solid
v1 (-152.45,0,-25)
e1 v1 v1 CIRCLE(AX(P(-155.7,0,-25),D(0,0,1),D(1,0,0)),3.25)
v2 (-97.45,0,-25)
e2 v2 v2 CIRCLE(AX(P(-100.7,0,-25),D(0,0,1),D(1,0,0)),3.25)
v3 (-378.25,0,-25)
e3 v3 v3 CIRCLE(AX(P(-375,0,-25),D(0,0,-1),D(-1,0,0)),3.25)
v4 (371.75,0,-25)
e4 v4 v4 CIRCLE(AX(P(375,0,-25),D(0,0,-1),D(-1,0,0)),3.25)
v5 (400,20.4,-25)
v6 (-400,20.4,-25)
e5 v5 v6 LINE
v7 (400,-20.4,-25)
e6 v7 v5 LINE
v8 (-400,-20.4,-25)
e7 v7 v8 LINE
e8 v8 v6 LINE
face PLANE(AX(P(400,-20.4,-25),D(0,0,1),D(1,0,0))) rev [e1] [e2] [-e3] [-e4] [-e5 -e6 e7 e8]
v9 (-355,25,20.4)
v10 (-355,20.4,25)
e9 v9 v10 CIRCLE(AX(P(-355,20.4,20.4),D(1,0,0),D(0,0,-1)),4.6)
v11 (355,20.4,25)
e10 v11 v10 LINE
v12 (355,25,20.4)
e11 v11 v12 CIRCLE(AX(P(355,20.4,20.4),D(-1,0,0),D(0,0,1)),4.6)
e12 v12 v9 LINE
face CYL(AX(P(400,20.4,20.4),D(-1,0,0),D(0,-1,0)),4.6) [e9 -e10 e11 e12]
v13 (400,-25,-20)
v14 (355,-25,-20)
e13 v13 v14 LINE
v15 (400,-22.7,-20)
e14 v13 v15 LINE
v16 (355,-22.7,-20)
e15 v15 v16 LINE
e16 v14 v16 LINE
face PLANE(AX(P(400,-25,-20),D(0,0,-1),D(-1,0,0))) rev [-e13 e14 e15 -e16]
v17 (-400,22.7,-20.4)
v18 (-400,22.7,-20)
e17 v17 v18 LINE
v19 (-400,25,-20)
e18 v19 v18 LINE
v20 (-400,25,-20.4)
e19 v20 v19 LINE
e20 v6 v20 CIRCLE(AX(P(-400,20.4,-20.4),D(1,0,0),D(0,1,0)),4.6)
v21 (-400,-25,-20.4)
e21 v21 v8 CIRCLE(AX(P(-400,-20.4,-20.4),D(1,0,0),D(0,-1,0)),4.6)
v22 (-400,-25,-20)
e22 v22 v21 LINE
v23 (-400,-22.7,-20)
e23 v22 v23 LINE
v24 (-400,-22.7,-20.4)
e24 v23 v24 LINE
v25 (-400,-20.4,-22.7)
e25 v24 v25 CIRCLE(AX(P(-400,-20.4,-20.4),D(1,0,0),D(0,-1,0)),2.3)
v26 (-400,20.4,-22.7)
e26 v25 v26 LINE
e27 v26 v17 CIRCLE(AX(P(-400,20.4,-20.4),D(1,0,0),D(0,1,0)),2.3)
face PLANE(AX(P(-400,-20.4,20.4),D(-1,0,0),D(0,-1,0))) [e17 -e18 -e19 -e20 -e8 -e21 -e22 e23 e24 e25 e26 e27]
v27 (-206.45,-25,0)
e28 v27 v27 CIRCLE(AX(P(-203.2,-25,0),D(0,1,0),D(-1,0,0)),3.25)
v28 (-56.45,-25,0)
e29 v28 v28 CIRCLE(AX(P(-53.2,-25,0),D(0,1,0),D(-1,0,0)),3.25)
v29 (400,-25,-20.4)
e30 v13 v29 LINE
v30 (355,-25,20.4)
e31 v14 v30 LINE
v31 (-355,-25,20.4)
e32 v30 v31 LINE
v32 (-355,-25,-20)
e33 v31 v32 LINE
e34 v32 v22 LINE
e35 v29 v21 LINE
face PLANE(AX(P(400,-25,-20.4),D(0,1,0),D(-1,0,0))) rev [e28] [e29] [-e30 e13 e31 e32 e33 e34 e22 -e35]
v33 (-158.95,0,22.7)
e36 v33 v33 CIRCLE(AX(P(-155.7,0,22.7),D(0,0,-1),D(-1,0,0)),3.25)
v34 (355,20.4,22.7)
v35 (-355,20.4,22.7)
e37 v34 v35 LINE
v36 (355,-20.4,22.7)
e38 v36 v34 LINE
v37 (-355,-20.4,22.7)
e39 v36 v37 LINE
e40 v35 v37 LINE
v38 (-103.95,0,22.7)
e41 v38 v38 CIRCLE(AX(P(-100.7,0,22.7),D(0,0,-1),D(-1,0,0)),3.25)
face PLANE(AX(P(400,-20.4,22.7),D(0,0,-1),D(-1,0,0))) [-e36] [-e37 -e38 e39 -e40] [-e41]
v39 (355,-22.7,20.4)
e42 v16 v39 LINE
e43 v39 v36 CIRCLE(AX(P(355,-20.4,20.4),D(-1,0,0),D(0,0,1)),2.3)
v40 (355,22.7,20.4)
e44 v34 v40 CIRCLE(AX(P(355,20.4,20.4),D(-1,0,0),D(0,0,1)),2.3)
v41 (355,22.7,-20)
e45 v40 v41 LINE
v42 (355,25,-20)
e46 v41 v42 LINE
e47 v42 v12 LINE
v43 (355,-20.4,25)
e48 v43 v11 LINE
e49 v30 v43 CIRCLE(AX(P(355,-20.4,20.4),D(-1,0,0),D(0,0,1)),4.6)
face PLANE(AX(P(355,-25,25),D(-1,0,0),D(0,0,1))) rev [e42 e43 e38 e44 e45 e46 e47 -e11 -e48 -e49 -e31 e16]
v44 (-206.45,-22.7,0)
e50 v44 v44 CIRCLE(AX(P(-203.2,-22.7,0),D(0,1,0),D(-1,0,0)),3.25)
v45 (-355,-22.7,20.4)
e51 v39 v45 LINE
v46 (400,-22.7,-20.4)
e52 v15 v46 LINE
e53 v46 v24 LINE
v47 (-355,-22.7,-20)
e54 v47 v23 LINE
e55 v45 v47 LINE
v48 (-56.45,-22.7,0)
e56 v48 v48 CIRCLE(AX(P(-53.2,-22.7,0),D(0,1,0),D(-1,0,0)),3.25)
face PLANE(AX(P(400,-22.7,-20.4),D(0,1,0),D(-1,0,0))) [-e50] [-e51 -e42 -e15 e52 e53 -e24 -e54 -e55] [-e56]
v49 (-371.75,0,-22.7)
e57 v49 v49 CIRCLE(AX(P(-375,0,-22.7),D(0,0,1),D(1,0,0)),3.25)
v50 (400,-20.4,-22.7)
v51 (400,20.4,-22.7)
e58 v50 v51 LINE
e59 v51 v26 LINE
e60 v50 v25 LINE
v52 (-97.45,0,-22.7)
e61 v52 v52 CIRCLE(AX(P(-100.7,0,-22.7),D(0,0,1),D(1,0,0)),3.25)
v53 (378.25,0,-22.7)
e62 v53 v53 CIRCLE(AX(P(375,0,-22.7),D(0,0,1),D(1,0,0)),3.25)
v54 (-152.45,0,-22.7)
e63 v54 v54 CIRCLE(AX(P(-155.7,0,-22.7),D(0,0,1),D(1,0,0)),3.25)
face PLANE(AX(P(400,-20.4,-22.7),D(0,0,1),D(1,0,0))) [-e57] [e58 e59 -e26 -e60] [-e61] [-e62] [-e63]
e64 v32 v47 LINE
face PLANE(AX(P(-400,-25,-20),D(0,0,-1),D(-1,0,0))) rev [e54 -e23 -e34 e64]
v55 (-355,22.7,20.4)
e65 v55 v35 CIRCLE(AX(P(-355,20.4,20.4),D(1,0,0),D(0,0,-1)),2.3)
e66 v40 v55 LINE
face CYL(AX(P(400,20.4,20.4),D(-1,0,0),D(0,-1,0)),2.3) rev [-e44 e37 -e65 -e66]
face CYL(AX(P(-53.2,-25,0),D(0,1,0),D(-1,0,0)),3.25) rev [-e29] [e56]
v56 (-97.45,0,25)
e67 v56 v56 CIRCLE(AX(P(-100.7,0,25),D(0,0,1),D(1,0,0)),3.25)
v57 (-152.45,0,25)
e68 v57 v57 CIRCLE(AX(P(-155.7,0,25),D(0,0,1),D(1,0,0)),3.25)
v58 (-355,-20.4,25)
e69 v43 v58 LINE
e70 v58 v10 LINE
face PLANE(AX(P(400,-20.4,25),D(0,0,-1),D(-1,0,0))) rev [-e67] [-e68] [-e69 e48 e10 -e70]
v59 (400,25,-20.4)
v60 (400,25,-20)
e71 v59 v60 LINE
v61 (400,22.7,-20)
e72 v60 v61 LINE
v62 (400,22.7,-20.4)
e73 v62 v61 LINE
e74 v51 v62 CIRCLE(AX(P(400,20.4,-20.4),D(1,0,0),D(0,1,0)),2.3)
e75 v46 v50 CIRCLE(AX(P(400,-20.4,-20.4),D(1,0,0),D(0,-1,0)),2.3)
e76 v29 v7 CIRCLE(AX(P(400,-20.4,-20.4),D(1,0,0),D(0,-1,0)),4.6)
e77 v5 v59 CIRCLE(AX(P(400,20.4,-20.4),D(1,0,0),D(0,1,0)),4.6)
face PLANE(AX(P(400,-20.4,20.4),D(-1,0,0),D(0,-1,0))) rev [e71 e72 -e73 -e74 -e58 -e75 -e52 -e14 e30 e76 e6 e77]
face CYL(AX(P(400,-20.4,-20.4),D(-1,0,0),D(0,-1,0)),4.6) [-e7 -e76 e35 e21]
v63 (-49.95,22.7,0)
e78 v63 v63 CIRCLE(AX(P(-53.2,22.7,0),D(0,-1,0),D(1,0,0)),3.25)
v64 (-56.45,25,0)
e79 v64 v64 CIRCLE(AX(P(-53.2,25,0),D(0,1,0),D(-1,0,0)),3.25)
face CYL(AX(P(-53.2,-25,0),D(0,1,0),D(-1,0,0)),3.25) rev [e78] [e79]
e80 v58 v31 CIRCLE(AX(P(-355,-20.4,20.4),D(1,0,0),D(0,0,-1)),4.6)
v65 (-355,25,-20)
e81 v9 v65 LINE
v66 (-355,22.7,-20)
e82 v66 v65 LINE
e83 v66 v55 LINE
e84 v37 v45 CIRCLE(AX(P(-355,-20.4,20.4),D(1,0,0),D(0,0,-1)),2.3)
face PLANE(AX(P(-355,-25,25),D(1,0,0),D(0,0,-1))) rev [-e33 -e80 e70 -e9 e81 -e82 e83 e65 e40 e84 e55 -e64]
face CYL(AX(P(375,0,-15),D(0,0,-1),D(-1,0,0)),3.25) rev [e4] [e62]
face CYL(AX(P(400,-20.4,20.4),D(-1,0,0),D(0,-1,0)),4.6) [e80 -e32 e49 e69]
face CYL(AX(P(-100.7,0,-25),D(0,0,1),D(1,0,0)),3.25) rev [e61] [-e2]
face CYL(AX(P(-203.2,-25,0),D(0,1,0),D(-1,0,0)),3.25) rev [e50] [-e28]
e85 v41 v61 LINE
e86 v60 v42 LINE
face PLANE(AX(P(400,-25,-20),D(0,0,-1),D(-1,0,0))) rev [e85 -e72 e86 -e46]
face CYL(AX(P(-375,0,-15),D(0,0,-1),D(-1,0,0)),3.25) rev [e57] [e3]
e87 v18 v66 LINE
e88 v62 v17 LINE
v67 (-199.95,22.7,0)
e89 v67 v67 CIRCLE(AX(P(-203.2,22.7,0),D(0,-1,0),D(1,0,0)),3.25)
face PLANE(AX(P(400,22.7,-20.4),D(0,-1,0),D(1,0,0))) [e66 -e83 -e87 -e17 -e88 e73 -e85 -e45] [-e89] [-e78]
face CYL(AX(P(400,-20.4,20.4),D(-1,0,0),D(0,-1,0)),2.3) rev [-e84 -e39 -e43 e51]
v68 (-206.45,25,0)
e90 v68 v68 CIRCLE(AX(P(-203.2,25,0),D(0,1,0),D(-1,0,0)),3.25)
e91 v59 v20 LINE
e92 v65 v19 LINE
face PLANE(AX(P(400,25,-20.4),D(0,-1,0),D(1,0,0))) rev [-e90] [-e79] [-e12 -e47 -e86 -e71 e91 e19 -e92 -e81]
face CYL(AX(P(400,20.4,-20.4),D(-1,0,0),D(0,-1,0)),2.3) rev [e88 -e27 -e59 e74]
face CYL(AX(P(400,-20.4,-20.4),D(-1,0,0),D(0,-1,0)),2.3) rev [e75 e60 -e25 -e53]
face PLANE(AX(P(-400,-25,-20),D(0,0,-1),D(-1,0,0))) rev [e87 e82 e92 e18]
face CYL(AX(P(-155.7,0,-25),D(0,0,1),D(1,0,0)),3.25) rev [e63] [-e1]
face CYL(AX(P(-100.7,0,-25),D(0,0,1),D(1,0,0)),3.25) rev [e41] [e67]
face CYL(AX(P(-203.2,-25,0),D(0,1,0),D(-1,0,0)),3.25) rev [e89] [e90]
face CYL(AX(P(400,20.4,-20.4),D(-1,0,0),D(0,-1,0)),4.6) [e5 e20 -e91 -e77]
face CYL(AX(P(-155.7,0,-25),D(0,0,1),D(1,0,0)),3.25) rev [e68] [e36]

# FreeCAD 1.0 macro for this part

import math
import FreeCAD as App
import Part
import Sketcher

V = App.Vector
Q = App.Units.Quantity

doc = App.newDocument("Part")
body = doc.addObject("PartDesign::Body", "Body")

sketch1 = body.newObject("Sketcher::SketchObject", "Sketch")
sketch1.AttachmentSupport = (doc.getObject("YZ_Plane"), [""])
sketch1.MapMode = "FlatFace"
sketch1.AttachmentOffset = App.Placement(V(0, 0, -400), App.Rotation())
sketch1.addGeometry([
    Part.LineSegment(V(-20.4, -25, 0), V(20.4, -25, 0)),
    Part.ArcOfCircle(Part.Circle(V(20.4, -20.4, 0), V(0, 0, 1), 4.6), math.radians(-90), math.radians(0)),
    Part.LineSegment(V(25, -20.4, 0), V(25, 20.4, 0)),
    Part.ArcOfCircle(Part.Circle(V(20.4, 20.4, 0), V(0, 0, 1), 4.6), math.radians(0), math.radians(90)),
    Part.LineSegment(V(20.4, 25, 0), V(-20.4, 25, 0)),
    Part.ArcOfCircle(Part.Circle(V(-20.4, 20.4, 0), V(0, 0, 1), 4.6), math.radians(90), math.radians(180)),
    Part.LineSegment(V(-25, 20.4, 0), V(-25, -20.4, 0)),
    Part.ArcOfCircle(Part.Circle(V(-20.4, -20.4, 0), V(0, 0, 1), 4.6), math.radians(-180), math.radians(-90)),
    Part.ArcOfCircle(Part.Circle(V(-20.4, 20.4, 0), V(0, 0, 1), 2.3), math.radians(90), math.radians(180)),
    Part.LineSegment(V(-20.4, 22.7, 0), V(20.4, 22.7, 0)),
    Part.ArcOfCircle(Part.Circle(V(20.4, 20.4, 0), V(0, 0, 1), 2.3), math.radians(0), math.radians(90)),
    Part.LineSegment(V(22.7, 20.4, 0), V(22.7, -20.4, 0)),
    Part.ArcOfCircle(Part.Circle(V(20.4, -20.4, 0), V(0, 0, 1), 2.3), math.radians(-90), math.radians(0)),
    Part.LineSegment(V(20.4, -22.7, 0), V(-20.4, -22.7, 0)),
    Part.ArcOfCircle(Part.Circle(V(-20.4, -20.4, 0), V(0, 0, 1), 2.3), math.radians(180), math.radians(270)),
    Part.LineSegment(V(-22.7, -20.4, 0), V(-22.7, 20.4, 0)),
], False)
sketch1.addConstraint([
    Sketcher.Constraint("Tangent", 0, 2, 1, 1),
    Sketcher.Constraint("Tangent", 1, 2, 2, 1),
    Sketcher.Constraint("Tangent", 2, 2, 3, 1),
    Sketcher.Constraint("Tangent", 3, 2, 4, 1),
    Sketcher.Constraint("Tangent", 4, 2, 5, 1),
    Sketcher.Constraint("Tangent", 5, 2, 6, 1),
    Sketcher.Constraint("Tangent", 6, 2, 7, 1),
    Sketcher.Constraint("Tangent", 7, 2, 0, 1),
    Sketcher.Constraint("Tangent", 8, 1, 9, 1),
    Sketcher.Constraint("Tangent", 9, 2, 10, 2),
    Sketcher.Constraint("Tangent", 10, 1, 11, 1),
    Sketcher.Constraint("Tangent", 11, 2, 12, 2),
    Sketcher.Constraint("Tangent", 12, 1, 13, 1),
    Sketcher.Constraint("Tangent", 13, 2, 14, 2),
    Sketcher.Constraint("Tangent", 14, 1, 15, 1),
    Sketcher.Constraint("Tangent", 15, 2, 8, 2),
    Sketcher.Constraint("Horizontal", 0),
    Sketcher.Constraint("Vertical", 2),
    Sketcher.Constraint("Horizontal", 4),
    Sketcher.Constraint("Vertical", 6),
    Sketcher.Constraint("Horizontal", 9),
    Sketcher.Constraint("Vertical", 11),
    Sketcher.Constraint("Horizontal", 13),
    Sketcher.Constraint("Vertical", 15),
    Sketcher.Constraint("Coincident", 8, 3, 5, 3),
    Sketcher.Constraint("Coincident", 10, 3, 3, 3),
    Sketcher.Constraint("Coincident", 12, 3, 1, 3),
    Sketcher.Constraint("Equal", 1, 3),
    Sketcher.Constraint("Equal", 3, 5),
    Sketcher.Constraint("Equal", 5, 7),
    Sketcher.Constraint("Equal", 12, 14),
    Sketcher.Constraint("Symmetric", 1, 3, 5, 3, -1, 1),
    Sketcher.Constraint("Equal", 13, 2),
    Sketcher.Constraint("Radius", 1, Q("4.6 mm")),
    Sketcher.Constraint("Radius", 8, Q("2.3 mm")),
    Sketcher.Constraint("DistanceX", 0, 1, 0, 2, Q("40.8 mm")),
])
pad1 = body.newObject("PartDesign::Pad", "Pad")
pad1.Profile = sketch1
pad1.Length = 800

sketch2 = body.newObject("Sketcher::SketchObject", "Sketch001")
sketch2.AttachmentSupport = (doc.getObject("XZ_Plane"), [""])
sketch2.MapMode = "FlatFace"
sketch2.addGeometry([
    Part.LineSegment(V(-400, -20, 0), V(-400, 25, 0)),
    Part.LineSegment(V(-400, 25, 0), V(-355, 25, 0)),
    Part.LineSegment(V(-355, 25, 0), V(-355, -20, 0)),
    Part.LineSegment(V(-355, -20, 0), V(-400, -20, 0)),
    Part.LineSegment(V(355, -20, 0), V(355, 25, 0)),
    Part.LineSegment(V(355, 25, 0), V(400, 25, 0)),
    Part.LineSegment(V(400, 25, 0), V(400, -20, 0)),
    Part.LineSegment(V(400, -20, 0), V(355, -20, 0)),
], False)
sketch2.addConstraint([
    Sketcher.Constraint("Coincident", 0, 2, 1, 1),
    Sketcher.Constraint("Coincident", 1, 2, 2, 1),
    Sketcher.Constraint("Coincident", 2, 2, 3, 1),
    Sketcher.Constraint("Coincident", 3, 2, 0, 1),
    Sketcher.Constraint("Coincident", 4, 2, 5, 1),
    Sketcher.Constraint("Coincident", 5, 2, 6, 1),
    Sketcher.Constraint("Coincident", 6, 2, 7, 1),
    Sketcher.Constraint("Coincident", 7, 2, 4, 1),
    Sketcher.Constraint("Vertical", 0),
    Sketcher.Constraint("Horizontal", 1),
    Sketcher.Constraint("Vertical", 2),
    Sketcher.Constraint("Horizontal", 3),
    Sketcher.Constraint("Vertical", 4),
    Sketcher.Constraint("Horizontal", 5),
    Sketcher.Constraint("Vertical", 6),
    Sketcher.Constraint("Horizontal", 7),
    Sketcher.Constraint("Symmetric", 1, 2, 4, 2, -2),
    Sketcher.Constraint("Symmetric", 3, 2, 6, 2, -2),
    Sketcher.Constraint("Equal", 7, 0),
    Sketcher.Constraint("DistanceX", 1, 1, 1, 2, Q("45 mm")),
    Sketcher.Constraint("DistanceX", 0, 2, -1, 1, Q("400 mm")),
    Sketcher.Constraint("DistanceY", -1, 1, 0, 2, Q("25 mm")),
])
pocket1 = body.newObject("PartDesign::Pocket", "Pocket")
pocket1.Profile = sketch2
pocket1.Type = "ThroughAll"
pocket1.Midplane = True

sketch3 = body.newObject("Sketcher::SketchObject", "Sketch002")
sketch3.AttachmentSupport = (doc.getObject("XY_Plane"), [""])
sketch3.MapMode = "FlatFace"
sketch3.AttachmentOffset = App.Placement(V(0, 0, -25), App.Rotation())
sketch3.addGeometry([
    Part.Circle(V(375, 0, 0), V(0, 0, 1), 3.25),
    Part.Circle(V(-375, 0, 0), V(0, 0, 1), 3.25),
], False)
sketch3.addConstraint([
    Sketcher.Constraint("Equal", 0, 1),
    Sketcher.Constraint("Symmetric", 0, 3, 1, 3, -1, 1),
    Sketcher.Constraint("PointOnObject", 0, 3, -1),
    Sketcher.Constraint("Diameter", 0, Q("6.5 mm")),
    Sketcher.Constraint("DistanceX", -1, 1, 0, 3, Q("375 mm")),
])
pocket2 = body.newObject("PartDesign::Pocket", "Pocket001")
pocket2.Profile = sketch3
pocket2.Length = 10
pocket2.Reversed = True

sketch4 = body.newObject("Sketcher::SketchObject", "Sketch003")
sketch4.AttachmentSupport = (doc.getObject("XY_Plane"), [""])
sketch4.MapMode = "FlatFace"
sketch4.AttachmentOffset = App.Placement(V(0, 0, 25), App.Rotation())
sketch4.addGeometry([
    Part.Circle(V(-155.7, 0, 0), V(0, 0, 1), 3.25),
    Part.Circle(V(-100.7, 0, 0), V(0, 0, 1), 3.25),
], False)
sketch4.addConstraint([
    Sketcher.Constraint("Equal", 0, 1),
    Sketcher.Constraint("PointOnObject", 0, 3, -1),
    Sketcher.Constraint("PointOnObject", 1, 3, -1),
    Sketcher.Constraint("Diameter", 0, Q("6.5 mm")),
    Sketcher.Constraint("DistanceX", 0, 3, 1, 3, Q("55 mm")),
    Sketcher.Constraint("DistanceX", 0, 3, -1, 1, Q("155.7 mm")),
])
pocket3 = body.newObject("PartDesign::Pocket", "Pocket002")
pocket3.Profile = sketch4
pocket3.Type = "ThroughAll"

sketch5 = body.newObject("Sketcher::SketchObject", "Sketch004")
sketch5.AttachmentSupport = (doc.getObject("XZ_Plane"), [""])
sketch5.MapMode = "FlatFace"
sketch5.AttachmentOffset = App.Placement(V(0, 0, -25), App.Rotation())
sketch5.addGeometry([
    Part.Circle(V(-203.2, 0, 0), V(0, 0, 1), 3.25),
    Part.Circle(V(-53.2, 0, 0), V(0, 0, 1), 3.25),
], False)
sketch5.addConstraint([
    Sketcher.Constraint("Equal", 0, 1),
    Sketcher.Constraint("PointOnObject", 0, 3, -1),
    Sketcher.Constraint("PointOnObject", 1, 3, -1),
    Sketcher.Constraint("Diameter", 0, Q("6.5 mm")),
    Sketcher.Constraint("DistanceX", 0, 3, 1, 3, Q("150 mm")),
    Sketcher.Constraint("DistanceX", 0, 3, -1, 1, Q("203.2 mm")),
])
pocket4 = body.newObject("PartDesign::Pocket", "Pocket003")
pocket4.Profile = sketch5
pocket4.Type = "ThroughAll"
pocket4.Reversed = True

doc.recompute()
